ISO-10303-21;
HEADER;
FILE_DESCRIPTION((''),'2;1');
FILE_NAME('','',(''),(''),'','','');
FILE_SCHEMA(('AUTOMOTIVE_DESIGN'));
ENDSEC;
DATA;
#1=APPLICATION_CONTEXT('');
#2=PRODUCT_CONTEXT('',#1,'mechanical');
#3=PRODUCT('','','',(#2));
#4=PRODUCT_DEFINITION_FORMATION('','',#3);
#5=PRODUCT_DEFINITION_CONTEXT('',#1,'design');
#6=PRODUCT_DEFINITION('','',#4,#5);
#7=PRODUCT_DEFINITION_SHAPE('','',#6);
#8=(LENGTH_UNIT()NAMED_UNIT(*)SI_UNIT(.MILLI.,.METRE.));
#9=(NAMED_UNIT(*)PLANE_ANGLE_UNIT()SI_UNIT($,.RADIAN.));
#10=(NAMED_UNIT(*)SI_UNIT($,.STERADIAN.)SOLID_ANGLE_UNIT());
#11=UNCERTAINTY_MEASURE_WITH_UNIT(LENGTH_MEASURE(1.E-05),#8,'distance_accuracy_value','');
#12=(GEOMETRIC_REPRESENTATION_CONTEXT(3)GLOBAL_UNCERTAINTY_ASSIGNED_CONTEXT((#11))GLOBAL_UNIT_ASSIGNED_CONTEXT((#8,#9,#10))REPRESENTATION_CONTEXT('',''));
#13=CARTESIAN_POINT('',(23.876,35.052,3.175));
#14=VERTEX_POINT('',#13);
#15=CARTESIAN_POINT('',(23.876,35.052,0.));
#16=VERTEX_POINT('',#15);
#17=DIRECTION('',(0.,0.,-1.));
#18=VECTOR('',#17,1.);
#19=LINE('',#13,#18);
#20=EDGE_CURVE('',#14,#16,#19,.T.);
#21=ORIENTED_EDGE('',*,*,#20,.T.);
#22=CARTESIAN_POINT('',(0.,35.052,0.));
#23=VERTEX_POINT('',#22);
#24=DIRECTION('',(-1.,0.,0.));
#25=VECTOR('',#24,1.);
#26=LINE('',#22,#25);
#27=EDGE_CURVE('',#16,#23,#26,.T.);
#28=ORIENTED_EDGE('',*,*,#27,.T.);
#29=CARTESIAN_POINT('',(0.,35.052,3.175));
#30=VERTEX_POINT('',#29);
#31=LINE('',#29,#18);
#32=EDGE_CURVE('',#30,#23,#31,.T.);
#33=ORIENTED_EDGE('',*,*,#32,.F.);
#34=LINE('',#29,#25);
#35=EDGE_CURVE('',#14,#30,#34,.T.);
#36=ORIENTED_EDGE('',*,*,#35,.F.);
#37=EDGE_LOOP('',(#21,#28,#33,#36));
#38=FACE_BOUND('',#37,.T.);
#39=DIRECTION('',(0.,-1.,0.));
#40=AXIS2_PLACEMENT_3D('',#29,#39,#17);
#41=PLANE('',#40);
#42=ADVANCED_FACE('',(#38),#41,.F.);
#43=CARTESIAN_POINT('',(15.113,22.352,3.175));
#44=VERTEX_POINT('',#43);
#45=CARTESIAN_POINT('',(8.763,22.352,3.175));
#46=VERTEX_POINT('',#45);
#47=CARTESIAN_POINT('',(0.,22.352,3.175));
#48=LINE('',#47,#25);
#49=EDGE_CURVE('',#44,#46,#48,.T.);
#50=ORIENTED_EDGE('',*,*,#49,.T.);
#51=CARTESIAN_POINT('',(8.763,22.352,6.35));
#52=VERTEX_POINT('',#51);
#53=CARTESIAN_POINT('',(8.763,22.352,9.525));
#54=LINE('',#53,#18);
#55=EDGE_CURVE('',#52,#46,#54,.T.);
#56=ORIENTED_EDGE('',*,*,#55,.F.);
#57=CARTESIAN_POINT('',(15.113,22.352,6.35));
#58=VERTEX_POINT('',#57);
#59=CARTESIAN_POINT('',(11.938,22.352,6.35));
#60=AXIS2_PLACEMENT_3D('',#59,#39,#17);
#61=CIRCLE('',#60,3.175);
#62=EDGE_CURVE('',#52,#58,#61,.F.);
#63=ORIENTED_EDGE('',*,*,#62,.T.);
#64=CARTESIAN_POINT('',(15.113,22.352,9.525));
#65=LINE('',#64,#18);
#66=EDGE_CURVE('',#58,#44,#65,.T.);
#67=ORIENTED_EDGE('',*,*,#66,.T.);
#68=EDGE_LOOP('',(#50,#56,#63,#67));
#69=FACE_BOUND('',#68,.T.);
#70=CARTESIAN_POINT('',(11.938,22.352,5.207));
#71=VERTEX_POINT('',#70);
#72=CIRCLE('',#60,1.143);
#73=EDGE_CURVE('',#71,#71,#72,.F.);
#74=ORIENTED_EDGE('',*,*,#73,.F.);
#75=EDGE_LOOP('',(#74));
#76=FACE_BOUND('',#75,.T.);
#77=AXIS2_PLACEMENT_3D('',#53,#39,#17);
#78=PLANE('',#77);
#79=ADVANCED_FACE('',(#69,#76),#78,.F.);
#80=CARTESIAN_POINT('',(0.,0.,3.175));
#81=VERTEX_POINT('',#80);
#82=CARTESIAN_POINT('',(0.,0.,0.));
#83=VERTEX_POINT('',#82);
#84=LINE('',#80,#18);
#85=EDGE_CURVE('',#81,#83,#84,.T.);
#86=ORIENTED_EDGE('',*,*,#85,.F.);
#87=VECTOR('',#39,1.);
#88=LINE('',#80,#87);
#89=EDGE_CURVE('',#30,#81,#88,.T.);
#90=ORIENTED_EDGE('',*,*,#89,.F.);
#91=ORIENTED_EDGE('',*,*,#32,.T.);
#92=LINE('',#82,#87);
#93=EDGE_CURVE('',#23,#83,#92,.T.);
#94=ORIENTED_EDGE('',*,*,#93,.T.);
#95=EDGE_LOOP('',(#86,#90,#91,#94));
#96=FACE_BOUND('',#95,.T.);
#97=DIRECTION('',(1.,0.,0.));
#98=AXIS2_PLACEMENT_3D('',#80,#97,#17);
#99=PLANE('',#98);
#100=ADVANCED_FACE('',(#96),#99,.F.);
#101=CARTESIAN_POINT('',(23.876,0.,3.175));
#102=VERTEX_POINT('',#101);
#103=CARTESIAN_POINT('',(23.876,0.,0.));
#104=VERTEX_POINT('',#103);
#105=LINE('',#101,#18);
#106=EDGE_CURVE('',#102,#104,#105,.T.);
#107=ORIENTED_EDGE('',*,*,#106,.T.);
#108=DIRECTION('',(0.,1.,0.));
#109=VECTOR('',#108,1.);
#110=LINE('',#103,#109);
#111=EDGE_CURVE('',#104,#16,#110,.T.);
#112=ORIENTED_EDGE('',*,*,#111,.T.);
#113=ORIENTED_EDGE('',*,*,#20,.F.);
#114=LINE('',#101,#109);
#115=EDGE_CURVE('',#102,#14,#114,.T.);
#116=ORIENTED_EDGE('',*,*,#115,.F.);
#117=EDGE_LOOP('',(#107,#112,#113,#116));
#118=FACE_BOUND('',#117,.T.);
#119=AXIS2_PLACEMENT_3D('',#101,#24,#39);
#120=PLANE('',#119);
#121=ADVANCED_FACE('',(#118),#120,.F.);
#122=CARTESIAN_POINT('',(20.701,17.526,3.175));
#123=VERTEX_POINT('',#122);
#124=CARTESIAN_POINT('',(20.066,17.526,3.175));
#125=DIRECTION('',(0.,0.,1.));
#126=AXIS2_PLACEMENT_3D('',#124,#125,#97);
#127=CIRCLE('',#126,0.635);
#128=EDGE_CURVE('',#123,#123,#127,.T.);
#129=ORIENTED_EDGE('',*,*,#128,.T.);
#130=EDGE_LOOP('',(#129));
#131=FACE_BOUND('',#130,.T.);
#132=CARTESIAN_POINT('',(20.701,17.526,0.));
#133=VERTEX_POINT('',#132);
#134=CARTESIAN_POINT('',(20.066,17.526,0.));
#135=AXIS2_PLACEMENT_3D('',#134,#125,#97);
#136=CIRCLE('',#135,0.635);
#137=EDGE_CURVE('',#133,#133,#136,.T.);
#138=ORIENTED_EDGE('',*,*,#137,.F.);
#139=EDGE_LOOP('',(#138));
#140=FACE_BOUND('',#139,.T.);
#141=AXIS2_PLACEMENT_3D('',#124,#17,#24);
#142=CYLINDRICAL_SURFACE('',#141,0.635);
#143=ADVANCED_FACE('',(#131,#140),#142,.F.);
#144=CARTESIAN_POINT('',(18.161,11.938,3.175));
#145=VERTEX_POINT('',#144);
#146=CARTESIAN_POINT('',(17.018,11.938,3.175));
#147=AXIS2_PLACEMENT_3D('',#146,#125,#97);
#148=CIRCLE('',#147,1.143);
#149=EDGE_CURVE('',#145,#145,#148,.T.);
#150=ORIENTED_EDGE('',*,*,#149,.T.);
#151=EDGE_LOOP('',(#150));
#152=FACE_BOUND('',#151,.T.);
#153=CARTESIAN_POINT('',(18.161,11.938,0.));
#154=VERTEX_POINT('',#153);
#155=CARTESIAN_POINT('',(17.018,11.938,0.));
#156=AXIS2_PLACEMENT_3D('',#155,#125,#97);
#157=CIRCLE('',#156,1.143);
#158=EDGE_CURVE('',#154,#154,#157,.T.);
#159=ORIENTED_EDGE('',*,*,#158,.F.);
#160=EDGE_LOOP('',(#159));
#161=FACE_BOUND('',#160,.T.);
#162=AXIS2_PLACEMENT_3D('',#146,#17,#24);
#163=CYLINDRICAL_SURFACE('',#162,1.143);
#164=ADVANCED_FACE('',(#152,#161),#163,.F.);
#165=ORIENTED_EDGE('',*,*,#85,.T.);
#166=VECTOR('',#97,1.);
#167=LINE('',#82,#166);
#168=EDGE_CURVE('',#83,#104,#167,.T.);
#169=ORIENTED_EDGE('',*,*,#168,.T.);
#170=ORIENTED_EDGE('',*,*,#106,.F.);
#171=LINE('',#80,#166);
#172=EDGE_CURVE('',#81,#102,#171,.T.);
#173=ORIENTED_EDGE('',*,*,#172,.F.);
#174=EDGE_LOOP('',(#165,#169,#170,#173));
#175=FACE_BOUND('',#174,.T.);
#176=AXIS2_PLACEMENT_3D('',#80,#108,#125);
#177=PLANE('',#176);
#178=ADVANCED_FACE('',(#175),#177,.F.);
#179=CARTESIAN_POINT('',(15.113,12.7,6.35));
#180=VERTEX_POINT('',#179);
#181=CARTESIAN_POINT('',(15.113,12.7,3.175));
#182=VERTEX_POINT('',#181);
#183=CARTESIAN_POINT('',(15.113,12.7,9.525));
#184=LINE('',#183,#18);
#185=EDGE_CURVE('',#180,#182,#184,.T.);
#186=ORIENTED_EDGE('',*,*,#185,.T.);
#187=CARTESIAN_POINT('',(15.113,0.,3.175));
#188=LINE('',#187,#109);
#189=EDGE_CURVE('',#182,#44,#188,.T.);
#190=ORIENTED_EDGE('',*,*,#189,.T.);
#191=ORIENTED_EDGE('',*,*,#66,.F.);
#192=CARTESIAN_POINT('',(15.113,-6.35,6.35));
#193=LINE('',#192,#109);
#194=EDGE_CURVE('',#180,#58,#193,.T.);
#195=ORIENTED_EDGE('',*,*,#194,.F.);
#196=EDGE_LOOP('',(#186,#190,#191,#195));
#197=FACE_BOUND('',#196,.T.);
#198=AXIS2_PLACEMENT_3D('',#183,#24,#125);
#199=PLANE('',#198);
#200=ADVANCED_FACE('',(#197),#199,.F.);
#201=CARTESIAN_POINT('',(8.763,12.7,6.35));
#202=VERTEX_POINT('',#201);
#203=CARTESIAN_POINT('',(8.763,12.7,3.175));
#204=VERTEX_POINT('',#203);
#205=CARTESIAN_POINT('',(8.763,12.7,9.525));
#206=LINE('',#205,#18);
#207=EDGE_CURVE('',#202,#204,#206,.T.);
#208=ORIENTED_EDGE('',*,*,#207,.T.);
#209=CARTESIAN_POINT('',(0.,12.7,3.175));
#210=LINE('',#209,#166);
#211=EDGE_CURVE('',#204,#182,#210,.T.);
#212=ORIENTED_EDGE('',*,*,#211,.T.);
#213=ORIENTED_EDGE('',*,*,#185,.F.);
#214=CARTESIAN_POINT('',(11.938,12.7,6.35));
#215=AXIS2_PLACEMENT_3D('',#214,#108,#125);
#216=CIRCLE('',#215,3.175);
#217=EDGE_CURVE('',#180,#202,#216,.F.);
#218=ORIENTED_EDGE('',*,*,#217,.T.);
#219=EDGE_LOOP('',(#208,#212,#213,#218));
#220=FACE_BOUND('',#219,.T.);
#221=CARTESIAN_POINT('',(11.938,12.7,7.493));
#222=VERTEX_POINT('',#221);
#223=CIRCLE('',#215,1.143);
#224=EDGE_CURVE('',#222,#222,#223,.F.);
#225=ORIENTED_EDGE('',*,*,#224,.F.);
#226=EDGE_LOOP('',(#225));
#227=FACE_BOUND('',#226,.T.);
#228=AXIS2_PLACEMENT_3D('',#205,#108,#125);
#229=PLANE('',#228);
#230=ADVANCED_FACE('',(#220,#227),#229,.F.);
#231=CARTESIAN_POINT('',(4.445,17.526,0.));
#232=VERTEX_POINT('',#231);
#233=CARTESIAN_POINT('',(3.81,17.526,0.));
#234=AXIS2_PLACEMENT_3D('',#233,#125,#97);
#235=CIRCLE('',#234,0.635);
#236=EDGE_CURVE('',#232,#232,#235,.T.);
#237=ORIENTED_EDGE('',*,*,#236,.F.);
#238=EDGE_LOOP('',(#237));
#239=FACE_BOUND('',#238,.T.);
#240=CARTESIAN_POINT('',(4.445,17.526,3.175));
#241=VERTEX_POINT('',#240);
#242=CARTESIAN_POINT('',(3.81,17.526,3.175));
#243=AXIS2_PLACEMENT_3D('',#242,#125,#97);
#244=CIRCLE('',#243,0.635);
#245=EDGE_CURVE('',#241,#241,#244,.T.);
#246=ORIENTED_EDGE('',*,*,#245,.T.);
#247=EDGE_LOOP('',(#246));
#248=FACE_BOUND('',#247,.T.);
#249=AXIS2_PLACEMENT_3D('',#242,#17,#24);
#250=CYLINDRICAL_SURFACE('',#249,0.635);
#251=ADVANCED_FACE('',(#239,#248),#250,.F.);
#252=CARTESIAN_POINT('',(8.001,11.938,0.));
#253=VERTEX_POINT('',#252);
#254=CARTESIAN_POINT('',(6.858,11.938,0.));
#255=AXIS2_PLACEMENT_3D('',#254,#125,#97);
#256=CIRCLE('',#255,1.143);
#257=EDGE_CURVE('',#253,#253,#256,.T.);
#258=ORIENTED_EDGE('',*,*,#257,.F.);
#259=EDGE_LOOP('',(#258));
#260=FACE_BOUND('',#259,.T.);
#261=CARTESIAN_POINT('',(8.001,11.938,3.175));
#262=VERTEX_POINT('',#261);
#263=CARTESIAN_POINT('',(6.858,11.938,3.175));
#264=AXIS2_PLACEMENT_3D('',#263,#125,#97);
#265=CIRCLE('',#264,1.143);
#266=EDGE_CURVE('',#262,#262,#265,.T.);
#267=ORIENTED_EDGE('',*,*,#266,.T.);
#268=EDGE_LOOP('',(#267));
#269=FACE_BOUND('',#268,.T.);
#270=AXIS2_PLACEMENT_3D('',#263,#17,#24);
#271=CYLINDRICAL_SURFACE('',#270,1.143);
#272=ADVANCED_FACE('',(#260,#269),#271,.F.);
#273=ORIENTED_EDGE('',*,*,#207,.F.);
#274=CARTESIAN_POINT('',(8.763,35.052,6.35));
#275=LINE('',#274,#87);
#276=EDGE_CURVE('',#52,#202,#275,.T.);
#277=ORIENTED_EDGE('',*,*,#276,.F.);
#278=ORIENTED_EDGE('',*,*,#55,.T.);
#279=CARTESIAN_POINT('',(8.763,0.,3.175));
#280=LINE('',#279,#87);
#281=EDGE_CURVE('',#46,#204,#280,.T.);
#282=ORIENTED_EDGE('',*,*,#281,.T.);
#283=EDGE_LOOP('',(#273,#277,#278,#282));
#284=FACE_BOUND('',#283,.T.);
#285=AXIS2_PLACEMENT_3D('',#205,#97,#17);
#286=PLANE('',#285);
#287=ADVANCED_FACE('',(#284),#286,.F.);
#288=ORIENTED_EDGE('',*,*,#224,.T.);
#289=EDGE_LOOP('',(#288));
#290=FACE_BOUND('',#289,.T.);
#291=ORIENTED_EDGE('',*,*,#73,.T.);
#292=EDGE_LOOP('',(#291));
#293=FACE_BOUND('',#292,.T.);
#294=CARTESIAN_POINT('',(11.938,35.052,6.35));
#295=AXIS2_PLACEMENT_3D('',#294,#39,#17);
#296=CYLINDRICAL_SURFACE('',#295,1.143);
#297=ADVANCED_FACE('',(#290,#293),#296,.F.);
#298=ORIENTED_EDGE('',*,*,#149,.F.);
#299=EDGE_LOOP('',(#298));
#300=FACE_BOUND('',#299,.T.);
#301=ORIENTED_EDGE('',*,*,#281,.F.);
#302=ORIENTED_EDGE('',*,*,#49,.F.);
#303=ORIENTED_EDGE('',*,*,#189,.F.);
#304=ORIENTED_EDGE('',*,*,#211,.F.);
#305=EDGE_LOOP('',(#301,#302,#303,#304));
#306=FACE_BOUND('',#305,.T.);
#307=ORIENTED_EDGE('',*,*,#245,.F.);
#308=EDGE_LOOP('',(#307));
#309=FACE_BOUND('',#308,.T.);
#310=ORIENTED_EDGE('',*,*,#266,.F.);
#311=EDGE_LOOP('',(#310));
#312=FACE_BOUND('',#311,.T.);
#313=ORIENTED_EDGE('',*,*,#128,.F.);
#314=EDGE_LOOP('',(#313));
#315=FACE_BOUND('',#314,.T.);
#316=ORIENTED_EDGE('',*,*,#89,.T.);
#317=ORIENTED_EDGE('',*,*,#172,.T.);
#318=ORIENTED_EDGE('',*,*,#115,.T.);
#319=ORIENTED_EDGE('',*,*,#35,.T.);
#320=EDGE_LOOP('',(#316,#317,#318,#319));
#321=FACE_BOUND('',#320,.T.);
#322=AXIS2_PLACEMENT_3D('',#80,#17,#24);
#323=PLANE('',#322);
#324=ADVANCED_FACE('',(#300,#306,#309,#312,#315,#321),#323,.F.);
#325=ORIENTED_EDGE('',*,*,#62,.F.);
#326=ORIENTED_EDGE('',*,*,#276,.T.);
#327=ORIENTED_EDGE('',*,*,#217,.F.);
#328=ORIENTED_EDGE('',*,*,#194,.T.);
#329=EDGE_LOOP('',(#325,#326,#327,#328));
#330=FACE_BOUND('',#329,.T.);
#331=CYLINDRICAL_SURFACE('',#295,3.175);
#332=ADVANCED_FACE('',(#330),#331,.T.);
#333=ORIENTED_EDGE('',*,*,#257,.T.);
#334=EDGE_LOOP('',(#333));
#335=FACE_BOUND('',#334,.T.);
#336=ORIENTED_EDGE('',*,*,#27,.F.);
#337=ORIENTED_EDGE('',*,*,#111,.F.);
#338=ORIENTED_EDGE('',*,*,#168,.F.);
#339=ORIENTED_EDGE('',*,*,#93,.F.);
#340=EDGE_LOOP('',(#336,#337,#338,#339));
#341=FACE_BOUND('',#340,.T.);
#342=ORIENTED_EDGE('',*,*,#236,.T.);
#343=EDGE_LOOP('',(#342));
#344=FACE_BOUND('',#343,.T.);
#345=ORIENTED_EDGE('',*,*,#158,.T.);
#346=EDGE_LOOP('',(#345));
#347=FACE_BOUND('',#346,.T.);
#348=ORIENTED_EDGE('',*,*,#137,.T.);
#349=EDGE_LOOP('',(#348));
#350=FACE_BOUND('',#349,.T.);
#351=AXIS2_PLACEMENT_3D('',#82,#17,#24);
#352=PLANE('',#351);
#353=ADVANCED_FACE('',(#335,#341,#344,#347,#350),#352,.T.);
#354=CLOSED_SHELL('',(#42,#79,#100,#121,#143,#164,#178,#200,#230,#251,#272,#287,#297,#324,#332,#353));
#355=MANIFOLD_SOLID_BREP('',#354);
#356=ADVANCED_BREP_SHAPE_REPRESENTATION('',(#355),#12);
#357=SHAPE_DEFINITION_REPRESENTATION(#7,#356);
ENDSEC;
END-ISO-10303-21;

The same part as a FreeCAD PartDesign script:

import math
import FreeCAD as App
import Part
import Sketcher

V = App.Vector
Q = App.Units.Quantity


def add_polygon(sketch, points):
    """Adds a closed chain of lines whose ends are joined by coincident constraints."""
    first, n = sketch.GeometryCount, len(points)
    for a, b in zip(points, points[1:] + points[:1]):
        sketch.addGeometry(Part.LineSegment(App.Vector(*a, 0), App.Vector(*b, 0)), False)
    for i in range(n):
        sketch.addConstraint(Sketcher.Constraint("Coincident", first + i, 2, first + (i + 1) % n, 1))

doc = App.newDocument("Part")
body = doc.addObject("PartDesign::Body", "Body")

# Sketch on XY plane
sketch1 = doc.addObject("Sketcher::SketchObject", "Sketch")
body.addObject(sketch1)
sketch1.AttachmentSupport = (doc.XY_Plane, [""])
sketch1.MapMode = "FlatFace"
add_polygon(sketch1, [(0, 35.1), (0, 0), (23.9, 0), (23.9, 35.1)])  # lines 0-3
sketch1.addGeometry(Part.Circle(V(6.9, 11.9, 0), V(0, 0, 1), 1.1), False)  # 4
sketch1.addGeometry(Part.Circle(V(17, 11.9, 0), V(0, 0, 1), 1.1), False)  # 5
sketch1.addGeometry(Part.Circle(V(3.8, 17.5, 0), V(0, 0, 1), 0.6), False)  # 6
sketch1.addGeometry(Part.Circle(V(20.1, 17.5, 0), V(0, 0, 1), 0.6), False)  # 7
sketch1.addConstraint([
    Sketcher.Constraint("Vertical", 0),
    Sketcher.Constraint("Horizontal", 1),
    Sketcher.Constraint("Vertical", 2),
    Sketcher.Constraint("Horizontal", 3),
    Sketcher.Constraint("Coincident", 0, 2, -1, 1),
    Sketcher.Constraint("Equal", 4, 5),
    Sketcher.Constraint("Equal", 6, 7),
    Sketcher.Constraint("Horizontal", 4, 3, 5, 3),
    Sketcher.Constraint("Horizontal", 6, 3, 7, 3),
    Sketcher.Constraint("Diameter", 4, Q("0.09 in")),
    Sketcher.Constraint("Diameter", 6, Q("0.05 in")),
    Sketcher.Constraint("DistanceX", 1, 1, 1, 2, Q("0.94 in")),
    Sketcher.Constraint("DistanceY", 0, 2, 0, 1, Q("1.38 in")),
    Sketcher.Constraint("DistanceX", 4, 3, 5, 3, Q("0.4 in")),
    Sketcher.Constraint("DistanceX", -1, 1, 4, 3, Q("0.27 in")),
    Sketcher.Constraint("DistanceY", -1, 1, 4, 3, Q("0.47 in")),
    Sketcher.Constraint("DistanceX", -1, 1, 6, 3, Q("0.15 in")),
    Sketcher.Constraint("DistanceY", -1, 1, 6, 3, Q("0.69 in")),
    Sketcher.Constraint("DistanceX", -1, 1, 7, 3, Q("0.79 in")),
])
pad1 = doc.addObject("PartDesign::Pad", "Pad")
body.addObject(pad1)
pad1.Profile = sketch1
pad1.Length = Q("0.125 in")

# Sketch on XY plane
sketch2 = doc.addObject("Sketcher::SketchObject", "Sketch001")
body.addObject(sketch2)
sketch2.AttachmentSupport = (doc.XY_Plane, [""])
sketch2.MapMode = "FlatFace"
add_polygon(sketch2, [(9, 22), (9, 13), (15, 13), (15, 22)])  # lines 0-3
sketch2.addConstraint([
    Sketcher.Constraint("Vertical", 0),
    Sketcher.Constraint("Horizontal", 1),
    Sketcher.Constraint("Vertical", 2),
    Sketcher.Constraint("Horizontal", 3),
    Sketcher.Constraint("DistanceX", 1, 1, 1, 2, Q("0.25 in")),
    Sketcher.Constraint("DistanceY", 0, 2, 0, 1, Q("0.38 in")),
    Sketcher.Constraint("DistanceY", -1, 1, 0, 2, Q("0.5 in")),
    Sketcher.Constraint("DistanceX", -1, 1, 0, 2, Q("0.345 in")),
])
pad2 = doc.addObject("PartDesign::Pad", "Pad001")
body.addObject(pad2)
pad2.Profile = sketch2
pad2.Length = Q("0.375 in")

# Sketch on XZ plane
sketch3 = doc.addObject("Sketcher::SketchObject", "Sketch002")
body.addObject(sketch3)
sketch3.AttachmentSupport = (doc.XZ_Plane, [""])
sketch3.MapMode = "FlatFace"
sketch3.addGeometry([
    Part.Circle(V(11.9, 6.3, 0), V(0, 0, 1), 1.1),  # 0
    Part.ArcOfCircle(Part.Circle(V(11.9, 6.3, 0), V(0, 0, 1), 3.2), math.radians(90), math.radians(180)),  # 1
    Part.LineSegment(V(8.8, 6.3, 0), V(8.8, 9.5, 0)),  # 2
    Part.LineSegment(V(8.8, 9.5, 0), V(11.9, 9.5, 0)),  # 3
    Part.ArcOfCircle(Part.Circle(V(11.9, 6.3, 0), V(0, 0, 1), 3.2), math.radians(0), math.radians(90)),  # 4
    Part.LineSegment(V(11.9, 9.5, 0), V(15.1, 9.5, 0)),  # 5
    Part.LineSegment(V(15.1, 9.5, 0), V(15.1, 6.3, 0)),  # 6
], False)
sketch3.addConstraint([
    Sketcher.Constraint("Tangent", 1, 2, 2, 1),
    Sketcher.Constraint("Coincident", 2, 2, 3, 1),
    Sketcher.Constraint("Tangent", 3, 2, 1, 1),
    Sketcher.Constraint("Tangent", 4, 2, 5, 1),
    Sketcher.Constraint("Coincident", 5, 2, 6, 1),
    Sketcher.Constraint("Tangent", 6, 2, 4, 1),
    Sketcher.Constraint("Vertical", 2),
    Sketcher.Constraint("Horizontal", 3),
    Sketcher.Constraint("Horizontal", 5),
    Sketcher.Constraint("Vertical", 6),
    Sketcher.Constraint("Coincident", 1, 3, 0, 3),
    Sketcher.Constraint("Coincident", 4, 3, 0, 3),
    Sketcher.Constraint("Equal", 1, 4),
    Sketcher.Constraint("Diameter", 0, Q("0.09 in")),
    Sketcher.Constraint("Radius", 1, Q("0.125 in")),
    Sketcher.Constraint("DistanceX", -1, 1, 0, 3, Q("0.47 in")),
    Sketcher.Constraint("DistanceY", -1, 1, 0, 3, Q("0.25 in")),
])
pocket1 = doc.addObject("PartDesign::Pocket", "Pocket")
body.addObject(pocket1)
pocket1.Profile = sketch3
pocket1.Type = "ThroughAll"
pocket1.Midplane = True

doc.recompute()
